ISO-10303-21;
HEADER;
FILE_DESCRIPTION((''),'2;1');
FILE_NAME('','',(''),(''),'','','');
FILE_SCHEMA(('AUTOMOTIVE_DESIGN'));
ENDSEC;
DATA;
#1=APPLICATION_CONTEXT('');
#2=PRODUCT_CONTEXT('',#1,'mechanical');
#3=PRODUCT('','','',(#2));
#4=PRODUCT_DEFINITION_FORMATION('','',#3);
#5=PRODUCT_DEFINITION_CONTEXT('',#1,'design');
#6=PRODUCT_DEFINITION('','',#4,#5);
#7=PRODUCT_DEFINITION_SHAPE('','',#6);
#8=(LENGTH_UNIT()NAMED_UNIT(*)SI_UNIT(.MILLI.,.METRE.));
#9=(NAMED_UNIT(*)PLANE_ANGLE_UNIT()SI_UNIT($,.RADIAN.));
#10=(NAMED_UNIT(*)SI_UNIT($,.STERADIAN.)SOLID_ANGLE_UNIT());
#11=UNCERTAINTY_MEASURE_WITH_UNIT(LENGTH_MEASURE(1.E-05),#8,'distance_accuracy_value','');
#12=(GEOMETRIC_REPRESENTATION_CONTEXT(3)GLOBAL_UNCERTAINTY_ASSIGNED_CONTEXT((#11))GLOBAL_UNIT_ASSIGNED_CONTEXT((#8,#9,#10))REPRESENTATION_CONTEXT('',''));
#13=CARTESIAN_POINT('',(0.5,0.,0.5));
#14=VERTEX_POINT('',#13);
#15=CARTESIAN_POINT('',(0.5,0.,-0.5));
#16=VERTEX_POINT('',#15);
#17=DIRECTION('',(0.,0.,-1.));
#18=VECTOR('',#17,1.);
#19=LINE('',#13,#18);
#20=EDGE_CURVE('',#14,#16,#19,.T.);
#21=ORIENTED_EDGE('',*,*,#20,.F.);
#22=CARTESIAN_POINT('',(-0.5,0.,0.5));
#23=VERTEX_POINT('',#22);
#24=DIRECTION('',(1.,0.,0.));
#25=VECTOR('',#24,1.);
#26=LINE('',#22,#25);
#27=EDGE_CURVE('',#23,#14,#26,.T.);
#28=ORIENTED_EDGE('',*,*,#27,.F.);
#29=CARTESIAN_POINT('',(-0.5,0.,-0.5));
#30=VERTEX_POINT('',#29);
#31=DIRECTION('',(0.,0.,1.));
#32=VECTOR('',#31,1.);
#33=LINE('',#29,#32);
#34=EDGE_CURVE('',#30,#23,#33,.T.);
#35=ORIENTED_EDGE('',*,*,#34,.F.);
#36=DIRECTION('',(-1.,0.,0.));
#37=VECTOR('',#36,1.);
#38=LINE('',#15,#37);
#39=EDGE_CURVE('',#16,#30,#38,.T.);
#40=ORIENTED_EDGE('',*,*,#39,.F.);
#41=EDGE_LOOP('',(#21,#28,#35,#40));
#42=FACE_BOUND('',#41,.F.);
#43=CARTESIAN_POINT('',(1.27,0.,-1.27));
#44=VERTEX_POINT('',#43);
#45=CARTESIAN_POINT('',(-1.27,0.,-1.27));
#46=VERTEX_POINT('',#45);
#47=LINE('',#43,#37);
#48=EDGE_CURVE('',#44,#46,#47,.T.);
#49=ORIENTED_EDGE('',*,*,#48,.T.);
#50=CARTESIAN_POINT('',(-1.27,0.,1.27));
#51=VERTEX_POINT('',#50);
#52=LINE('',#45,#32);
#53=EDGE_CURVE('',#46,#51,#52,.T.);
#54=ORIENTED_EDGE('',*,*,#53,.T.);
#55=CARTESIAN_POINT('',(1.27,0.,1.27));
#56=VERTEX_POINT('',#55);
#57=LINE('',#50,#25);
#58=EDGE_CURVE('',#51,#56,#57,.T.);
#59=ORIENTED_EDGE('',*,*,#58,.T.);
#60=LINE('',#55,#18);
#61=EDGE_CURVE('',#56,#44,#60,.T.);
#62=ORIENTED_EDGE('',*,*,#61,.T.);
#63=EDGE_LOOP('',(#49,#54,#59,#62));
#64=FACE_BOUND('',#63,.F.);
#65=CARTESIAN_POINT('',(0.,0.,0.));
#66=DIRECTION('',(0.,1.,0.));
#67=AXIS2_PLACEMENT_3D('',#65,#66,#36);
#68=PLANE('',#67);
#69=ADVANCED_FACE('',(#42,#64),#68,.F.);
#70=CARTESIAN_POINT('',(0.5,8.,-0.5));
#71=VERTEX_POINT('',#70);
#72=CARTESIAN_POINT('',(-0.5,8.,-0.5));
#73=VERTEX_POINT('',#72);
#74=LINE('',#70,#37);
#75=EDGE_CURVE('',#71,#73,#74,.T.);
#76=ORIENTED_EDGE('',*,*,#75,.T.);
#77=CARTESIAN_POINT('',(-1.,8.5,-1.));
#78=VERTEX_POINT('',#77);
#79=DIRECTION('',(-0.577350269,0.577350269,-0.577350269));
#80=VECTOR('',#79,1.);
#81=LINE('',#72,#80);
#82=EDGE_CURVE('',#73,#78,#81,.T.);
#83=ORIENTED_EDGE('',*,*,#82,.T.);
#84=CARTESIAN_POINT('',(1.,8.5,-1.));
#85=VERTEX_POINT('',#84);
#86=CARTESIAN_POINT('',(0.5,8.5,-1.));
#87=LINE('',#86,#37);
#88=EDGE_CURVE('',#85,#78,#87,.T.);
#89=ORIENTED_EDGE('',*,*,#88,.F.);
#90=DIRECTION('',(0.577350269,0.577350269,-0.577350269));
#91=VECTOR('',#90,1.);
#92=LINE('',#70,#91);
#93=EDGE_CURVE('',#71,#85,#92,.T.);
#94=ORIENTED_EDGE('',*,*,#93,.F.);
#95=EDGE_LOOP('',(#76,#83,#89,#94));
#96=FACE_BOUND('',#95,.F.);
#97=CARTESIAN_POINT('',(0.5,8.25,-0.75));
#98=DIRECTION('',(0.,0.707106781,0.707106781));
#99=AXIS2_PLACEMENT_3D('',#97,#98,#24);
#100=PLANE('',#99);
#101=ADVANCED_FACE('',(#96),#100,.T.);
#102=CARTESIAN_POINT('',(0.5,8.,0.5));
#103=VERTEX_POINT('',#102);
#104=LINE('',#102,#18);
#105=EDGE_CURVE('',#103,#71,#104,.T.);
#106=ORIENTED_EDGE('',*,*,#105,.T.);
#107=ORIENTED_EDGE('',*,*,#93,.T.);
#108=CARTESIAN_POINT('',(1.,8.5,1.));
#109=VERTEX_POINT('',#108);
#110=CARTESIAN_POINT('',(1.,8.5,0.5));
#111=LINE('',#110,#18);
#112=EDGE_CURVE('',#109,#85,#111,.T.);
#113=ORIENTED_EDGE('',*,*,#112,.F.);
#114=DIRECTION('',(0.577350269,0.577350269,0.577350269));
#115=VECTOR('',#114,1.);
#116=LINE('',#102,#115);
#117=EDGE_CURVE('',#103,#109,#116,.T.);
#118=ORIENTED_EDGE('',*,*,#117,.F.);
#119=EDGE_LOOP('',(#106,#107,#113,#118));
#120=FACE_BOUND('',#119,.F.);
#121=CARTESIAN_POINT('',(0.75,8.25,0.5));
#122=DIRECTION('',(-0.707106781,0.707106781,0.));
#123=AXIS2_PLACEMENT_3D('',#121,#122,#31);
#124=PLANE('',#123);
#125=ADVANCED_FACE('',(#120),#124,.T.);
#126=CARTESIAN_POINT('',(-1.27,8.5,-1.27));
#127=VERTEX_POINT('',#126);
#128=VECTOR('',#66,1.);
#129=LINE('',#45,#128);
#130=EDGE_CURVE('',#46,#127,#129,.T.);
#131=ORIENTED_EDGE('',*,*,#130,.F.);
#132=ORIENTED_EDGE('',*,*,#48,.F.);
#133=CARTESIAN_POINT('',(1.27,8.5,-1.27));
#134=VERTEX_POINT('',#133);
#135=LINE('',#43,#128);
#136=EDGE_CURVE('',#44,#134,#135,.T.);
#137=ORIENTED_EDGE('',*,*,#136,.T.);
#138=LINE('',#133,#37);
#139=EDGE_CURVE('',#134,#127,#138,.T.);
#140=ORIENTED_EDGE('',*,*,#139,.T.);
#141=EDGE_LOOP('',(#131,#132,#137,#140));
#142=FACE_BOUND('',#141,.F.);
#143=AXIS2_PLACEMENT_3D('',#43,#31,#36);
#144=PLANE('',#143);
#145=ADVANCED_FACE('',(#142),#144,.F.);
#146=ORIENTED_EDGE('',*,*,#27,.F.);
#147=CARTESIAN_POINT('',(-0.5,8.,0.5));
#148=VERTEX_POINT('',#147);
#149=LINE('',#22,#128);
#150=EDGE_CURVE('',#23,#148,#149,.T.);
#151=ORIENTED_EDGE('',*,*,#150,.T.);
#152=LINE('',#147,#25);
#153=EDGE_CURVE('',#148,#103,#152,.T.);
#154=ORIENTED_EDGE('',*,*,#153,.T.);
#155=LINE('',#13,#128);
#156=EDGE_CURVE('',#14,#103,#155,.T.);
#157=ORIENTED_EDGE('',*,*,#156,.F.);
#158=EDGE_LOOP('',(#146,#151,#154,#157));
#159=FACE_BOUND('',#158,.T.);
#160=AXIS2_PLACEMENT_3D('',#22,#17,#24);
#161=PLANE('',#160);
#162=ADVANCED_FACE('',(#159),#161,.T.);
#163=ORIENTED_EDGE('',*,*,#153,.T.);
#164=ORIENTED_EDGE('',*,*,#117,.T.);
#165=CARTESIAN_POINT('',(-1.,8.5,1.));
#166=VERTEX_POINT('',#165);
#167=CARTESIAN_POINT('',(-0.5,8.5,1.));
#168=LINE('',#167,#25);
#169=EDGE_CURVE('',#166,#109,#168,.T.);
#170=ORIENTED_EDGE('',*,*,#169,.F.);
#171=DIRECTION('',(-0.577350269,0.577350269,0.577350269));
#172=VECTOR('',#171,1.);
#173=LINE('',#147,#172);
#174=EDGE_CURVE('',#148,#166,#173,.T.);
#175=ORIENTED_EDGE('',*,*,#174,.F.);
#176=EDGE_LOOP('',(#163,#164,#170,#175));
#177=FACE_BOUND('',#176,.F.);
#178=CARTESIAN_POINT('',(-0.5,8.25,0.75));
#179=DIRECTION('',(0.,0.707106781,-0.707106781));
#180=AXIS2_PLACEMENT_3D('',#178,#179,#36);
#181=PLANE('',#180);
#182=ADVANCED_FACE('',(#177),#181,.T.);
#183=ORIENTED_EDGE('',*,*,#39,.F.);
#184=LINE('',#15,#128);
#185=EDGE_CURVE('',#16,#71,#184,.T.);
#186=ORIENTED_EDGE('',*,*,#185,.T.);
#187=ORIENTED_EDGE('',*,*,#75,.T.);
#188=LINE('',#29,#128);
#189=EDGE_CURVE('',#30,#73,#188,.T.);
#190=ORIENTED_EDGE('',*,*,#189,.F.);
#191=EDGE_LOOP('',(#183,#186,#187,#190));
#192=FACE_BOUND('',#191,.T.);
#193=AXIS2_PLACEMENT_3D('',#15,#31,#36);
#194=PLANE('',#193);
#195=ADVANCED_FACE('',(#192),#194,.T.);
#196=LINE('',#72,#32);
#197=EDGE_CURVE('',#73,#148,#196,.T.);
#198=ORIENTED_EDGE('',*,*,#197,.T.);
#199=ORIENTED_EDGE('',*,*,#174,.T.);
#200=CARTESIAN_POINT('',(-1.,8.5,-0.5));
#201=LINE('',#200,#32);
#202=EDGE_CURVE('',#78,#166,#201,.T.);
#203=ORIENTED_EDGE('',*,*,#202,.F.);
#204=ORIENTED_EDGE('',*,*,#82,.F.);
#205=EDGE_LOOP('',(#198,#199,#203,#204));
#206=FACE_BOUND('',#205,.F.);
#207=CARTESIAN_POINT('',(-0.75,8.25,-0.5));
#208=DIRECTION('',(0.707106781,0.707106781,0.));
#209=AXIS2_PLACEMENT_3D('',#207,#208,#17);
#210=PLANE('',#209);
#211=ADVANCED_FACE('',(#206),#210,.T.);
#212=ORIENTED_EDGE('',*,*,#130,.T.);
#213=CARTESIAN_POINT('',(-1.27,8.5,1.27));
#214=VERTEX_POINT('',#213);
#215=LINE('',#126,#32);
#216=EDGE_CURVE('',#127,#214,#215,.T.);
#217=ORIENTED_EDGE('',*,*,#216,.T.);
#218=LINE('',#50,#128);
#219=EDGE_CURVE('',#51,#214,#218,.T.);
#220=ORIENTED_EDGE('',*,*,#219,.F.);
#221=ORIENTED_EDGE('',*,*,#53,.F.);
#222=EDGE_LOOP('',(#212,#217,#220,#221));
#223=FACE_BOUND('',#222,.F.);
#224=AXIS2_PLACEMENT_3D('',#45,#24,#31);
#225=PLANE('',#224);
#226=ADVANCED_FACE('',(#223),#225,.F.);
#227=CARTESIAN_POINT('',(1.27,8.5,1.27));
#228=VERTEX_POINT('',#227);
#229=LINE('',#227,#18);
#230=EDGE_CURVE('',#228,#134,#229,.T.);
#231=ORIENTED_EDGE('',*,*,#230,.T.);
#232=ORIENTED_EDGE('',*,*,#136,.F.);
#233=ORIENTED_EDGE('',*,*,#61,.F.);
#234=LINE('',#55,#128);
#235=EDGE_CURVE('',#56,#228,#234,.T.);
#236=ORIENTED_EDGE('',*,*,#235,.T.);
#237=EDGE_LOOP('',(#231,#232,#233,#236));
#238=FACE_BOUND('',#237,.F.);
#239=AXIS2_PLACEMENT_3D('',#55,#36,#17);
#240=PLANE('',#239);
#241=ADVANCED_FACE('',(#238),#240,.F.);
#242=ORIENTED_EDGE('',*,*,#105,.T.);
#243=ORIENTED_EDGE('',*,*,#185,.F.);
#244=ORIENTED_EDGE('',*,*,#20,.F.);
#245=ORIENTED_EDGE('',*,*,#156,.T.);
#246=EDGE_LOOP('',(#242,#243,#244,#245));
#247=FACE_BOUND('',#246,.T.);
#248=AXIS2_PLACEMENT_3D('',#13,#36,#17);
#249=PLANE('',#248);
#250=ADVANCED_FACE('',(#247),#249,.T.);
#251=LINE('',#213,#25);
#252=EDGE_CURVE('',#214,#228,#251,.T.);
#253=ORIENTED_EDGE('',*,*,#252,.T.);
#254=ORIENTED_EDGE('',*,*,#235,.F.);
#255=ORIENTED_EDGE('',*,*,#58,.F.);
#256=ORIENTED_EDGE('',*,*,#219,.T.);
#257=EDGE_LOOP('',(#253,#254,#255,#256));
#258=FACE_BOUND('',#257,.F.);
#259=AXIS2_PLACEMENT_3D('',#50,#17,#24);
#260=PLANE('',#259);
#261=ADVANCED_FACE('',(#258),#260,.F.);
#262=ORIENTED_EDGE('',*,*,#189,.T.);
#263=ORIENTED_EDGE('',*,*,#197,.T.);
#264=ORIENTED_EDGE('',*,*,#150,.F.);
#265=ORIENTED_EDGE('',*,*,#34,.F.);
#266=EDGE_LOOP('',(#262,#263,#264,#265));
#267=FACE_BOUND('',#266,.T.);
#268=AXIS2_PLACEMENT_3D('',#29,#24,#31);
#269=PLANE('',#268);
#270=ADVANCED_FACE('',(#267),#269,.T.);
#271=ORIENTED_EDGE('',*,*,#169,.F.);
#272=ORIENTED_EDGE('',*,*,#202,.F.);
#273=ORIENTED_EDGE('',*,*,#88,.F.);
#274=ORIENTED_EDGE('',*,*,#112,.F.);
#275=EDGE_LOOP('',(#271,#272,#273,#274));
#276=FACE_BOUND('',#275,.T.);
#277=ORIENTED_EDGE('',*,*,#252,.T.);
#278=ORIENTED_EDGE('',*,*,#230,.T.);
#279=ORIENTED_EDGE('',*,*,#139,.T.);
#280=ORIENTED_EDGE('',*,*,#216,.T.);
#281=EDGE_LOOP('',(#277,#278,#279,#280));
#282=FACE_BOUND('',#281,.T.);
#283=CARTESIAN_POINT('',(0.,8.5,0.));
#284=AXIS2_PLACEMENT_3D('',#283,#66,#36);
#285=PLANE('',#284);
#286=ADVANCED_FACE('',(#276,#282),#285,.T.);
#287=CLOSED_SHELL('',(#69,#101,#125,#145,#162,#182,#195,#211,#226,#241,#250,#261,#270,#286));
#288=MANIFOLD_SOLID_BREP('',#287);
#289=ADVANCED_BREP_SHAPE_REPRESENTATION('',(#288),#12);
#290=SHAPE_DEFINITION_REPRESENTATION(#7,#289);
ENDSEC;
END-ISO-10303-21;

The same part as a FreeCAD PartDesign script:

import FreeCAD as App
import Part
import Sketcher

V = App.Vector
Q = App.Units.Quantity


def edges_at(feature, points):
    """Names of the edges that pass closest to the given points."""
    edges = feature.Shape.Edges
    near = lambda p: min(range(len(edges)), key=lambda i: edges[i].distToShape(Part.Vertex(*p))[0])
    return sorted({f"Edge{near(p) + 1}" for p in points})

doc = App.newDocument("Part")
body = doc.addObject("PartDesign::Body", "Body")

sketch1 = body.newObject("Sketcher::SketchObject", "Sketch")
sketch1.AttachmentSupport = (doc.getObject("XZ_Plane"), [""])
sketch1.MapMode = "FlatFace"
sketch1.addGeometry(Part.LineSegment(V(-1.27, -1.27, 0), V(-1.27, 1.27, 0)), False)
sketch1.addGeometry(Part.LineSegment(V(-1.27, 1.27, 0), V(1.27, 1.27, 0)), False)
sketch1.addGeometry(Part.LineSegment(V(1.27, 1.27, 0), V(1.27, -1.27, 0)), False)
sketch1.addGeometry(Part.LineSegment(V(1.27, -1.27, 0), V(-1.27, -1.27, 0)), False)
sketch1.addGeometry(Part.LineSegment(V(0.5, 0.5, 0), V(-0.5, 0.5, 0)), False)
sketch1.addGeometry(Part.LineSegment(V(-0.5, 0.5, 0), V(-0.5, -0.5, 0)), False)
sketch1.addGeometry(Part.LineSegment(V(-0.5, -0.5, 0), V(0.5, -0.5, 0)), False)
sketch1.addGeometry(Part.LineSegment(V(0.5, -0.5, 0), V(0.5, 0.5, 0)), False)
sketch1.addConstraint(Sketcher.Constraint("Coincident", 0, 2, 1, 1))
sketch1.addConstraint(Sketcher.Constraint("Coincident", 1, 2, 2, 1))
sketch1.addConstraint(Sketcher.Constraint("Coincident", 2, 2, 3, 1))
sketch1.addConstraint(Sketcher.Constraint("Coincident", 3, 2, 0, 1))
sketch1.addConstraint(Sketcher.Constraint("Coincident", 4, 2, 5, 1))
sketch1.addConstraint(Sketcher.Constraint("Coincident", 5, 2, 6, 1))
sketch1.addConstraint(Sketcher.Constraint("Coincident", 6, 2, 7, 1))
sketch1.addConstraint(Sketcher.Constraint("Coincident", 7, 2, 4, 1))
sketch1.addConstraint(Sketcher.Constraint("Vertical", 0))
sketch1.addConstraint(Sketcher.Constraint("Horizontal", 1))
sketch1.addConstraint(Sketcher.Constraint("Vertical", 2))
sketch1.addConstraint(Sketcher.Constraint("Horizontal", 3))
sketch1.addConstraint(Sketcher.Constraint("Horizontal", 4))
sketch1.addConstraint(Sketcher.Constraint("Vertical", 5))
sketch1.addConstraint(Sketcher.Constraint("Horizontal", 6))
sketch1.addConstraint(Sketcher.Constraint("Vertical", 7))
sketch1.addConstraint(Sketcher.Constraint("Symmetric", 0, 2, 2, 2, -1, 1))
sketch1.addConstraint(Sketcher.Constraint("Symmetric", 4, 2, 6, 2, -1, 1))
sketch1.addConstraint(Sketcher.Constraint("Equal", 3, 0))
sketch1.addConstraint(Sketcher.Constraint("Equal", 6, 5))
sketch1.addConstraint(Sketcher.Constraint("DistanceX", 4, 2, 4, 1, Q("1 mm")))
sketch1.addConstraint(Sketcher.Constraint("DistanceX", 1, 1, 1, 2, Q("2.54 mm")))
pad1 = body.newObject("PartDesign::Pad", "Pad")
pad1.Profile = sketch1
pad1.Length = 8.5
pad1.Reversed = True
doc.recompute()

chamfer = body.newObject("PartDesign::Chamfer", "Chamfer")
chamfer.Base = (pad1, edges_at(pad1, [
    (-0.5, 8.5, 0),
    (0, 8.5, -0.5),
    (0.5, 8.5, 0),
    (0, 8.5, 0.5),
]))
chamfer.Size = 0.5

doc.recompute()
